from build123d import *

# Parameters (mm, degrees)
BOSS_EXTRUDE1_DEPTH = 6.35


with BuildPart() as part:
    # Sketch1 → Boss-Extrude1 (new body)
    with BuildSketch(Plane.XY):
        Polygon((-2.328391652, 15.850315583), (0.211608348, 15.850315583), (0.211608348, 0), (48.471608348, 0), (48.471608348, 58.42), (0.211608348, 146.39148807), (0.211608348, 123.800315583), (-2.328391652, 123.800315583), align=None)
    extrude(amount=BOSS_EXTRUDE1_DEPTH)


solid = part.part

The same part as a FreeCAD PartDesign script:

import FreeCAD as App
import Part
import Sketcher
Q = App.Units.Quantity

doc = App.newDocument("Part")
body = doc.addObject("PartDesign::Body", "Body")

sketch1 = body.newObject("Sketcher::SketchObject", "Sketch")
sketch1.AttachmentSupport = (doc.getObject("XY_Plane"), [""])
sketch1.MapMode = "FlatFace"
sketch1.addGeometry(Part.LineSegment(App.Vector(-2.3, 15.9, 0), App.Vector(0.2, 15.9, 0)), False)
sketch1.addGeometry(Part.LineSegment(App.Vector(0.2, 15.9, 0), App.Vector(0.2, 0, 0)), False)
sketch1.addGeometry(Part.LineSegment(App.Vector(0.2, 0, 0), App.Vector(48.5, 0, 0)), False)
sketch1.addGeometry(Part.LineSegment(App.Vector(48.5, 0, 0), App.Vector(48.5, 58.4, 0)), False)
sketch1.addGeometry(Part.LineSegment(App.Vector(48.5, 58.4, 0), App.Vector(0.2, 146.4, 0)), False)
sketch1.addGeometry(Part.LineSegment(App.Vector(0.2, 146.4, 0), App.Vector(0.2, 123.8, 0)), False)
sketch1.addGeometry(Part.LineSegment(App.Vector(0.2, 123.8, 0), App.Vector(-2.3, 123.8, 0)), False)
sketch1.addGeometry(Part.LineSegment(App.Vector(-2.3, 123.8, 0), App.Vector(-2.3, 15.9, 0)), False)
sketch1.addConstraint(Sketcher.Constraint("Coincident", 0, 2, 1, 1))
sketch1.addConstraint(Sketcher.Constraint("Coincident", 1, 2, 2, 1))
sketch1.addConstraint(Sketcher.Constraint("Coincident", 2, 2, 3, 1))
sketch1.addConstraint(Sketcher.Constraint("Coincident", 3, 2, 4, 1))
sketch1.addConstraint(Sketcher.Constraint("Coincident", 4, 2, 5, 1))
sketch1.addConstraint(Sketcher.Constraint("Coincident", 5, 2, 6, 1))
sketch1.addConstraint(Sketcher.Constraint("Coincident", 6, 2, 7, 1))
sketch1.addConstraint(Sketcher.Constraint("Coincident", 7, 2, 0, 1))
sketch1.addConstraint(Sketcher.Constraint("Horizontal", 0))
sketch1.addConstraint(Sketcher.Constraint("Vertical", 1))
sketch1.addConstraint(Sketcher.Constraint("Horizontal", 2))
sketch1.addConstraint(Sketcher.Constraint("Vertical", 3))
sketch1.addConstraint(Sketcher.Constraint("Vertical", 5))
sketch1.addConstraint(Sketcher.Constraint("Horizontal", 6))
sketch1.addConstraint(Sketcher.Constraint("Vertical", 7))
sketch1.addConstraint(Sketcher.Constraint("PointOnObject", 1, 2, -1))
sketch1.addConstraint(Sketcher.Constraint("Vertical", 1, 2, 4, 2))
sketch1.addConstraint(Sketcher.Constraint("DistanceX", 0, 1, 0, 2, Q("0.1 in")))
sketch1.addConstraint(Sketcher.Constraint("DistanceX", 2, 1, 2, 2, Q("1.9 in")))
sketch1.addConstraint(Sketcher.Constraint("DistanceY", 3, 1, 3, 2, Q("2.3 in")))
sketch1.addConstraint(Sketcher.Constraint("DistanceY", 7, 2, 7, 1, Q("4.25 in")))
sketch1.addConstraint(Sketcher.Constraint("DistanceY", 1, 2, 1, 1, Q("15.850316 mm")))
sketch1.addConstraint(Sketcher.Constraint("DistanceY", 5, 2, 5, 1, Q("22.591172 mm")))
sketch1.addConstraint(Sketcher.Constraint("DistanceX", -1, 1, 0, 2, Q("0.211608 mm")))
pad1 = body.newObject("PartDesign::Pad", "Pad")
pad1.Profile = sketch1
pad1.Length = Q("0.25 in")

doc.recompute()
